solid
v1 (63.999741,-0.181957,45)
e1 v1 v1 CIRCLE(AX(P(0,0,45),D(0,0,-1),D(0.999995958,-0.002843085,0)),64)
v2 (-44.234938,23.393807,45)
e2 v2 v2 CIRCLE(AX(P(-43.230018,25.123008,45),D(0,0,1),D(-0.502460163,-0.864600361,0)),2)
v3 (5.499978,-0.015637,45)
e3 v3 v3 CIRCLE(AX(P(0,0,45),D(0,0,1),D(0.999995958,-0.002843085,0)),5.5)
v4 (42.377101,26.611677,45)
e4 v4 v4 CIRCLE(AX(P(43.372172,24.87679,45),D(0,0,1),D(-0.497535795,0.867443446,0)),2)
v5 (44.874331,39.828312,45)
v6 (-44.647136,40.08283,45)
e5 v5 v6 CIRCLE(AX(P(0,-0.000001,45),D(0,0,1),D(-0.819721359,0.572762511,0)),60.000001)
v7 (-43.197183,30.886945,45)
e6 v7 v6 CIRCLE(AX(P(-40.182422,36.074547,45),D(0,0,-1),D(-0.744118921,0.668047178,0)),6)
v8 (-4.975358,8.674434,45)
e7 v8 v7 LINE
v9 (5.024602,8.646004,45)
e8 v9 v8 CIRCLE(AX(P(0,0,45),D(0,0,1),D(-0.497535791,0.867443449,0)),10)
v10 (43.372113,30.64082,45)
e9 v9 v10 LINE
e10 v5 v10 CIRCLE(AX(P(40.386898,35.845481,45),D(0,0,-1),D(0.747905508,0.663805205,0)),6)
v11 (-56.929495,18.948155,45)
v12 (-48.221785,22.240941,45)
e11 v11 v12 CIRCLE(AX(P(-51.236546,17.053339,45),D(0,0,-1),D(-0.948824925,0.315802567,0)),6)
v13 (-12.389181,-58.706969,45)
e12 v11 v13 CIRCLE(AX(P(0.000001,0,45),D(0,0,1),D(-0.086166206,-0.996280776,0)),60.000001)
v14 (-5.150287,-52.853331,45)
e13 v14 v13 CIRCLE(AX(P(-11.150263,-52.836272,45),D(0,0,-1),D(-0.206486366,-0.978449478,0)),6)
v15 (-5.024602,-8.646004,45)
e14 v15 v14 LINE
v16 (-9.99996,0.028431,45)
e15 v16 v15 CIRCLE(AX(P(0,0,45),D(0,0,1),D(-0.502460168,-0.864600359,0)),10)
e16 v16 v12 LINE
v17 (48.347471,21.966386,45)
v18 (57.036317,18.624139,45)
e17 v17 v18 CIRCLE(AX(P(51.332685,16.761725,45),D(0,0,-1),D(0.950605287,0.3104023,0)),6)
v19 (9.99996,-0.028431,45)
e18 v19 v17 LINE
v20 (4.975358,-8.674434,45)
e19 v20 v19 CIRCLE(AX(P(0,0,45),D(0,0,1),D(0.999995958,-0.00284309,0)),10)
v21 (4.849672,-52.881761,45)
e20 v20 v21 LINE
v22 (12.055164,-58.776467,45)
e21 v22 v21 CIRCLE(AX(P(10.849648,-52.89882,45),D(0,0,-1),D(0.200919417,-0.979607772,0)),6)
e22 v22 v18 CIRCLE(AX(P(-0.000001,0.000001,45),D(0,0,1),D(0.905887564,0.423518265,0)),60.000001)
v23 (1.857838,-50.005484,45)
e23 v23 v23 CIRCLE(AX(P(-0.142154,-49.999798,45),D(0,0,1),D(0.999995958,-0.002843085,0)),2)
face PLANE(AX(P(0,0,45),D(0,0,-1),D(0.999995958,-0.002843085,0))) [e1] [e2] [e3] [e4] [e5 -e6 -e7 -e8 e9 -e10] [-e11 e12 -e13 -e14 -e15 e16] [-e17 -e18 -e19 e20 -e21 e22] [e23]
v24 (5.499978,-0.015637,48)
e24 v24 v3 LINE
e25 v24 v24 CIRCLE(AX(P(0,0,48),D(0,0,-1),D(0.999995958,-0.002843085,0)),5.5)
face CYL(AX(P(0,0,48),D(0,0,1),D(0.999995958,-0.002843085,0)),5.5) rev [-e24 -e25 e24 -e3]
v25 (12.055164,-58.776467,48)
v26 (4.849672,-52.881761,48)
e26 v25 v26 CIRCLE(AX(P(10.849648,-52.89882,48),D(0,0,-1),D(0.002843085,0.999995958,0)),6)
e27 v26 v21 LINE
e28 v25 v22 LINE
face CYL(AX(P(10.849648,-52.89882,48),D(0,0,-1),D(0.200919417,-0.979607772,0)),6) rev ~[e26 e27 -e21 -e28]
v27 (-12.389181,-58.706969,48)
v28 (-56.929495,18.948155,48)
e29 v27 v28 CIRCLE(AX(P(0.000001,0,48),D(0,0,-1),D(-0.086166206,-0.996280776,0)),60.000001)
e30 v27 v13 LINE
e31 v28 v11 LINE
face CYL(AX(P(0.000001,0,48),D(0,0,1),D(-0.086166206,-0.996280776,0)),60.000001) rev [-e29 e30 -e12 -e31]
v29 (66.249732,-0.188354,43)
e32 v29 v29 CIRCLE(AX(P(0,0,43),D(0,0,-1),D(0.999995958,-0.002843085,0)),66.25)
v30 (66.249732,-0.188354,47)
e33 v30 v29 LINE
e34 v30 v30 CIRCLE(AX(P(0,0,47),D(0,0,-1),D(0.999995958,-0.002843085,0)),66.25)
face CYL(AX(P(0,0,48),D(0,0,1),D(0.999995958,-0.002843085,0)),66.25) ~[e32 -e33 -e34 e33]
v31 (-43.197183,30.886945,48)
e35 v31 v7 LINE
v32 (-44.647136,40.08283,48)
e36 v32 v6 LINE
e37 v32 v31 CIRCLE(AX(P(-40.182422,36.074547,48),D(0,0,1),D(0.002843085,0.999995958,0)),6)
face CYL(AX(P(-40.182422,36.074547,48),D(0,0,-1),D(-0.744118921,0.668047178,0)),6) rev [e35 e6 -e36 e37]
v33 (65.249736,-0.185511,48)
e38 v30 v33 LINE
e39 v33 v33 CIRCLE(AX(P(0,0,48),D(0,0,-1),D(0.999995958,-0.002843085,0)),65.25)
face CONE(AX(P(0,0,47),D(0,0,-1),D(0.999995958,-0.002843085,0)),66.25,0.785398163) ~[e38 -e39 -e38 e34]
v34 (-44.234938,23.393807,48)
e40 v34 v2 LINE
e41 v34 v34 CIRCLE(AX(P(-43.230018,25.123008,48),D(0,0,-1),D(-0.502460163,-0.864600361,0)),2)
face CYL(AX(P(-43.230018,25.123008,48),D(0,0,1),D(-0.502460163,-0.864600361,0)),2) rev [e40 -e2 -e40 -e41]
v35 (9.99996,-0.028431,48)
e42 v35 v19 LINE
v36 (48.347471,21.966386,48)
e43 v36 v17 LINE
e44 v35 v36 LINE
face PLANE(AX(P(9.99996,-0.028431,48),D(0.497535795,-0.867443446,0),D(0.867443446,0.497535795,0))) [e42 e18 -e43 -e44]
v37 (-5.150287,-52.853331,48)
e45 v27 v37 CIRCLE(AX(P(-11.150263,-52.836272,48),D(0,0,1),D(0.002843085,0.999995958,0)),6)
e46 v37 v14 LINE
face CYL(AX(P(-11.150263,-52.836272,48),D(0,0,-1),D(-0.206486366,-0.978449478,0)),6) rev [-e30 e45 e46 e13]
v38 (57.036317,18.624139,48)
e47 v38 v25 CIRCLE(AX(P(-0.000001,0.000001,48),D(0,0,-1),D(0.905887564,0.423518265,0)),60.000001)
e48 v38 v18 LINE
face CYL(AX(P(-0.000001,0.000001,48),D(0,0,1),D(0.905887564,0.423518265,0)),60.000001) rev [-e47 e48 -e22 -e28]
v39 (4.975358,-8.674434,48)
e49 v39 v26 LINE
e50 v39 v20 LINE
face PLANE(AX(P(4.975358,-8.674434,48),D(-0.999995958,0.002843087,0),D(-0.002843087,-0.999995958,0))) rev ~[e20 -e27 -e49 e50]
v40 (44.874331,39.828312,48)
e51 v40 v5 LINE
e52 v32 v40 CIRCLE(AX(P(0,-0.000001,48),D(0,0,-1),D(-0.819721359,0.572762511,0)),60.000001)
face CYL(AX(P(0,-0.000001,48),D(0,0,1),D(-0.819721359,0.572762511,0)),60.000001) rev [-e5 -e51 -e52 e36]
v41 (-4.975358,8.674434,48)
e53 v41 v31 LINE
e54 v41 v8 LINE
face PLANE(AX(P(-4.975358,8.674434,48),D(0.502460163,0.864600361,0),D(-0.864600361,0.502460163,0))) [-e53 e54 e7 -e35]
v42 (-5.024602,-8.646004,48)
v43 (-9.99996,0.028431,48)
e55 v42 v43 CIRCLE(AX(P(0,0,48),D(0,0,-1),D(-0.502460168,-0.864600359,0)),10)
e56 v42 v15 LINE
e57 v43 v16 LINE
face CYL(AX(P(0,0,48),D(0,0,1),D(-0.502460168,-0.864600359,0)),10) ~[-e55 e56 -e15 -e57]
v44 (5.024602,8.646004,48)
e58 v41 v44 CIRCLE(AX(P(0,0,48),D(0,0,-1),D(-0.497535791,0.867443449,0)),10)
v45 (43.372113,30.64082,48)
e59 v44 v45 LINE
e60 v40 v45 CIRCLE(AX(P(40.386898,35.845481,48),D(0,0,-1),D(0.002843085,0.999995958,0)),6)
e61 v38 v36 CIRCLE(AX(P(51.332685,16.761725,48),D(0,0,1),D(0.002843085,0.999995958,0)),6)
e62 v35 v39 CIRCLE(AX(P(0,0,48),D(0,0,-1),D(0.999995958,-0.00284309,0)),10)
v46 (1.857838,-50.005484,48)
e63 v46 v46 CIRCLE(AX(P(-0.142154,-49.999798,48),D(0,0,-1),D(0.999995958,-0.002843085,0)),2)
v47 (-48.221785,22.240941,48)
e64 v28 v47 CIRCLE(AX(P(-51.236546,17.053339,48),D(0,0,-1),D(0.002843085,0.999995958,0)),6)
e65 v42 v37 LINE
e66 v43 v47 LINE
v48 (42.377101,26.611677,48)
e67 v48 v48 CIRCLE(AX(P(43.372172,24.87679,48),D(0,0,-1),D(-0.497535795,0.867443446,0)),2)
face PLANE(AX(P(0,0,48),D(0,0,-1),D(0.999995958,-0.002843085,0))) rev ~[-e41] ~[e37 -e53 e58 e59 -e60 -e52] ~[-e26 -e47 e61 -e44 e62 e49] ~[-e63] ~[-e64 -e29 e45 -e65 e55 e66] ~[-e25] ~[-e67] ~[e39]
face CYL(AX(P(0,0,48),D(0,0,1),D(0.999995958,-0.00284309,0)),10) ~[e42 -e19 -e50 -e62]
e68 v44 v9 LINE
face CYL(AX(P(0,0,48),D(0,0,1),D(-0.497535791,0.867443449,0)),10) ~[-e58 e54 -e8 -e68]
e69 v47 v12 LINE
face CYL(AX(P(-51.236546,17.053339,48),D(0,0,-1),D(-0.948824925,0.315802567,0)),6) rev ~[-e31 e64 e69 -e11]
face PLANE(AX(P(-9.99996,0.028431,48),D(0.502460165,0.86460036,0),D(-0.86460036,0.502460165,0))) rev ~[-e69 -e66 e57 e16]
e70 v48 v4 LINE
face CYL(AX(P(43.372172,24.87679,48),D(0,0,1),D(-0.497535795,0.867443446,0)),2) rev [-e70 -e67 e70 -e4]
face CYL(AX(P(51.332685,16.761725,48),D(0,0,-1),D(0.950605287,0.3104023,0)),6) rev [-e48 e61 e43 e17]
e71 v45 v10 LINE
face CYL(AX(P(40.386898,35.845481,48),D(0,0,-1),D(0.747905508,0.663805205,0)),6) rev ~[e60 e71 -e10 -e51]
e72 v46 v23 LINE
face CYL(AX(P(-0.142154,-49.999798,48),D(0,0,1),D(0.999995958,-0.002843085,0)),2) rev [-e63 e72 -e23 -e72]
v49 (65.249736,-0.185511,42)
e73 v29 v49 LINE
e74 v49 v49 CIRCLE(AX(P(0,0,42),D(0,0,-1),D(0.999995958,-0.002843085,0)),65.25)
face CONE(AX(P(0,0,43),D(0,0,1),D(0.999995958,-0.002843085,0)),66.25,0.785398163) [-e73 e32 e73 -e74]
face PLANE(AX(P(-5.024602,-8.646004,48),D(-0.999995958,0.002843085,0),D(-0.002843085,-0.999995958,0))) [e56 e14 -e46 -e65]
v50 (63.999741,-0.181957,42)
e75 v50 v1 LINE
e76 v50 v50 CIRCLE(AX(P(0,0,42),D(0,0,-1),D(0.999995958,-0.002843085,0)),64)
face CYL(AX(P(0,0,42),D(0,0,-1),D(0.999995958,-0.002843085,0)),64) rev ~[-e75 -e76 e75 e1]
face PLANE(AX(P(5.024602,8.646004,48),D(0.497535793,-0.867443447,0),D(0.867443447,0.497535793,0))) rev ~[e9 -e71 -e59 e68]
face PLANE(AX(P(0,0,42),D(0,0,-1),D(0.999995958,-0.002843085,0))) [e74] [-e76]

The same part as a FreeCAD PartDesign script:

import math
import FreeCAD as App
import Part
import Sketcher
Q = App.Units.Quantity


def edges_at(feature, points):
    """Names of the edges that pass closest to the given points."""
    edges = feature.Shape.Edges
    near = lambda p: min(range(len(edges)), key=lambda i: edges[i].distToShape(Part.Vertex(*p))[0])
    return sorted({f"Edge{near(p) + 1}" for p in points})

doc = App.newDocument("Part")
body = doc.addObject("PartDesign::Body", "Body")

# Sketch on XY plane
sketch1 = doc.addObject("Sketcher::SketchObject", "Sketch")
body.addObject(sketch1)
sketch1.AttachmentSupport = (doc.XY_Plane, [""])
sketch1.MapMode = "FlatFace"
sketch1.addGeometry(Part.Circle(App.Vector(0, 0, 0), App.Vector(0, 0, 1), 66), False)
sketch1.addConstraint([
    Sketcher.Constraint("Coincident", 0, 3, -1, 1),
    Sketcher.Constraint("Diameter", 0, 132.5),
])
pad1 = doc.addObject("PartDesign::Pad", "Pad")
body.addObject(pad1)
pad1.Profile = sketch1
pad1.Length = 6

# Sketch on XY plane
sketch2 = doc.addObject("Sketcher::SketchObject", "Sketch001")
body.addObject(sketch2)
sketch2.AttachmentSupport = (doc.XY_Plane, [""])
sketch2.MapMode = "FlatFace"
sketch2.addGeometry(Part.Circle(App.Vector(0, 0, 0), App.Vector(0, 0, 1), 6), False)
sketch2.addConstraint([
    Sketcher.Constraint("Coincident", 0, 3, -1, 1),
    Sketcher.Constraint("Diameter", 0, 11.0),
])
pocket1 = doc.addObject("PartDesign::Pocket", "Pocket")
body.addObject(pocket1)
pocket1.Profile = sketch2
pocket1.Type = "ThroughAll"
pocket1.Reversed = True

# Sketch on XY plane
sketch3 = doc.addObject("Sketcher::SketchObject", "Sketch002")
body.addObject(sketch3)
sketch3.AttachmentSupport = (doc.XY_Plane, [""])
sketch3.MapMode = "FlatFace"
sketch3.addGeometry([
    Part.Circle(App.Vector(0, 50, 0), App.Vector(0, 0, 1), 2),  # 0
    Part.ArcOfCircle(Part.Circle(App.Vector(0, 0, 0), App.Vector(0, 0, 1), 60), math.radians(95), math.radians(205)),  # 1
    Part.LineSegment(App.Vector(-54.3, -25.6, 0), App.Vector(-10, 0, 0)),  # 2
    Part.ArcOfCircle(Part.Circle(App.Vector(0, 0, 0), App.Vector(0, 0, 1), 10), math.radians(120), math.radians(180)),  # 3
    Part.LineSegment(App.Vector(-5, 8.7, 0), App.Vector(-5, 59.8, 0)),  # 4
], False)
sketch3.addConstraint([
    Sketcher.Constraint("Coincident", 1, 2, 2, 1),
    Sketcher.Constraint("Coincident", 2, 2, 3, 2),
    Sketcher.Constraint("Coincident", 3, 1, 4, 1),
    Sketcher.Constraint("Coincident", 4, 2, 1, 1),
    Sketcher.Constraint("Vertical", 4),
    Sketcher.Constraint("Coincident", 1, 3, -1, 1),
    Sketcher.Constraint("Coincident", 3, 3, -1, 1),
    Sketcher.Constraint("PointOnObject", 0, 3, -2),
    Sketcher.Constraint("PointOnObject", 2, 2, -1),
    Sketcher.Constraint("Diameter", 0, 4.0),
    Sketcher.Constraint("Radius", 1, 60.000001),
    Sketcher.Constraint("Radius", 3, 10.0),
    Sketcher.Constraint("Angle", 2, Q("30 deg")),
    Sketcher.Constraint("DistanceY", -1, 1, 0, 3, 50.0),
    Sketcher.Constraint("DistanceX", 3, 1, -1, 1, 5.0),
])
pocket2 = doc.addObject("PartDesign::Pocket", "Pocket001")
body.addObject(pocket2)
pocket2.Profile = sketch3
pocket2.Type = "ThroughAll"
pocket2.Reversed = True
doc.recompute()

polarpattern = doc.addObject("PartDesign::PolarPattern", "PolarPattern")
body.addObject(polarpattern)
polarpattern.Originals = [pocket2]
polarpattern.Axis = (doc.Z_Axis, [""])
polarpattern.Angle = 360
polarpattern.Occurrences = 3
body.Tip = polarpattern
doc.recompute()

chamfer = doc.addObject("PartDesign::Chamfer", "Chamfer")
body.addObject(chamfer)
chamfer.Base = (polarpattern, edges_at(polarpattern, [(-66.25, 0, 6), (-66.25, 0, 0)]))
chamfer.Size = 1
doc.recompute()

fillet = doc.addObject("PartDesign::Fillet", "Fillet")
body.addObject(fillet)
fillet.Base = (chamfer, edges_at(chamfer, [
    (-54.281, -25.566, 3),
    (-5, 59.791, 3),
    (5, 59.791, 3),
    (54.281, -25.566, 3),
    (49.281, -34.226, 3),
    (-49.281, -34.226, 3),
]))
fillet.Radius = 6

# Sketch on XY plane
sketch4 = doc.addObject("Sketcher::SketchObject", "Sketch003")
body.addObject(sketch4)
sketch4.AttachmentSupport = (doc.XY_Plane, [""])
sketch4.MapMode = "FlatFace"
sketch4.AttachmentOffset = App.Placement(App.Vector(0, 0, 6), App.Rotation())
sketch4.addGeometry(Part.Circle(App.Vector(0, 0, 0), App.Vector(0, 0, 1), 64), False)
sketch4.addConstraint([
    Sketcher.Constraint("Coincident", 0, 3, -1, 1),
    Sketcher.Constraint("Diameter", 0, 128.0),
])
pocket3 = doc.addObject("PartDesign::Pocket", "Pocket002")
body.addObject(pocket3)
pocket3.Profile = sketch4
pocket3.Length = 3
body2 = doc.addObject("PartDesign::Body", "Body001")
doc.recompute()

body.Placement = App.Placement(App.Vector(0, 0, 0), App.Rotation(App.Vector(1, 0, 0), 180))
boolean = doc.addObject("PartDesign::Boolean", "Boolean")
body2.addObject(boolean)
boolean.Type = "Fuse"
boolean.addObjects([body])
body3 = doc.addObject("PartDesign::Body", "Body002")
doc.recompute()

body2.Placement = App.Placement(App.Vector(0, 0, 48), App.Rotation(App.Vector(0, 0, 1), 359.837103))
boolean2 = doc.addObject("PartDesign::Boolean", "Boolean001")
body3.addObject(boolean2)
boolean2.Type = "Fuse"
boolean2.addObjects([body2])

doc.recompute()
